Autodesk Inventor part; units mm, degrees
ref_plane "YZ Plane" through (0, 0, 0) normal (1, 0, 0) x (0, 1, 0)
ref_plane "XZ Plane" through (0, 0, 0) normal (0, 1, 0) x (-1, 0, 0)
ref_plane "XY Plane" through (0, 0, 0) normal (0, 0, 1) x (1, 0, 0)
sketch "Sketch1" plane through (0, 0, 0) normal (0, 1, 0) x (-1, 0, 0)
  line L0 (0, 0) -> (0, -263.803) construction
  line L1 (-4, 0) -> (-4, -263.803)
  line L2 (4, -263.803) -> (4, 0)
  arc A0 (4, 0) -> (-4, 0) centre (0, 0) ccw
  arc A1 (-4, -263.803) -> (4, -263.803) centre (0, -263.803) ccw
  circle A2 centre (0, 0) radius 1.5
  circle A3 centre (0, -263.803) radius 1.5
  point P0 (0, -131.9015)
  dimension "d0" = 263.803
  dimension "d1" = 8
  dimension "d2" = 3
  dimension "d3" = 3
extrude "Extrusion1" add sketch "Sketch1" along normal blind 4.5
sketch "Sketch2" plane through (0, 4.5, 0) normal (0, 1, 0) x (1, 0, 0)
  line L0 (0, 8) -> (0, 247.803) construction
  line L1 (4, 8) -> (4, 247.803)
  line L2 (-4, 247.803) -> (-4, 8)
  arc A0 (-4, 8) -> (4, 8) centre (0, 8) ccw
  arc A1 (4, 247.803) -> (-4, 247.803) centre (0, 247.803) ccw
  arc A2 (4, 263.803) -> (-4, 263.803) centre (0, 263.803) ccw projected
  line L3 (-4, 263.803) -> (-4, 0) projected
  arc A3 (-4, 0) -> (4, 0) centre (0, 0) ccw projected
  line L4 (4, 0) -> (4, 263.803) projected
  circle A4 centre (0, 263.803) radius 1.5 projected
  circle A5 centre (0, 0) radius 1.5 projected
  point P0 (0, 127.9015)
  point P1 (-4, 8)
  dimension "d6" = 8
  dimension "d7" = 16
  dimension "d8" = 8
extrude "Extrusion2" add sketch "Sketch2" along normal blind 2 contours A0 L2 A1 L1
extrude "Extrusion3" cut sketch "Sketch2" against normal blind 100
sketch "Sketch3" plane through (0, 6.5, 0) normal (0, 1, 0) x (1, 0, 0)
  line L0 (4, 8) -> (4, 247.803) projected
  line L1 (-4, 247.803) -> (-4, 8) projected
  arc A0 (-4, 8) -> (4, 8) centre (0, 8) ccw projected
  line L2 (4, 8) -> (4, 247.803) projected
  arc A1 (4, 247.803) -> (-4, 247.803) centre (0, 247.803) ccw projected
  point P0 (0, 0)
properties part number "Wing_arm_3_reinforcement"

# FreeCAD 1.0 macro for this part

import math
import FreeCAD as App
import Part
import Sketcher
from FreeCAD import Vector
Q = App.Units.Quantity

doc = App.newDocument("Part")
body = doc.addObject("PartDesign::Body", "Body")

sketch1 = body.newObject("Sketcher::SketchObject", "Sketch")
sketch1.AttachmentSupport = (doc.getObject("XZ_Plane"), [""])
sketch1.MapMode = "FlatFace"
sketch1.addGeometry([
    Part.ArcOfCircle(Part.Circle(Vector(0, 0, 0), Vector(0, 0, 1), 4), math.radians(0), math.radians(180)),
    Part.LineSegment(Vector(4, 0, 0), Vector(4, -263.8, 0)),
    Part.ArcOfCircle(Part.Circle(Vector(0, -263.8, 0), Vector(0, 0, 1), 4), math.radians(180), math.radians(360)),
    Part.LineSegment(Vector(-4, -263.8, 0), Vector(-4, 0, 0)),
    Part.Circle(Vector(0, -263.8, 0), Vector(0, 0, 1), 1.5),
    Part.Circle(Vector(0, 0, 0), Vector(0, 0, 1), 1.5),
], False)
sketch1.addConstraint([
    Sketcher.Constraint("Tangent", 0, 1, 1, 1),
    Sketcher.Constraint("Tangent", 1, 2, 2, 2),
    Sketcher.Constraint("Tangent", 2, 1, 3, 1),
    Sketcher.Constraint("Tangent", 3, 2, 0, 2),
    Sketcher.Constraint("Vertical", 1),
    Sketcher.Constraint("Vertical", 3),
    Sketcher.Constraint("Coincident", 0, 3, -1, 1),
    Sketcher.Constraint("Coincident", 5, 3, -1, 1),
    Sketcher.Constraint("Coincident", 4, 3, 2, 3),
    Sketcher.Constraint("Equal", 4, 5),
    Sketcher.Constraint("Diameter", 4, Q("3 mm")),
    Sketcher.Constraint("Radius", 0, Q("4 mm")),
    Sketcher.Constraint("DistanceY", 1, 2, 1, 1, Q("263.803 mm")),
])
pad1 = body.newObject("PartDesign::Pad", "Pad")
pad1.Profile = sketch1
pad1.Length = 4.5
pad1.Reversed = True

sketch2 = body.newObject("Sketcher::SketchObject", "Sketch001")
sketch2.AttachmentSupport = (doc.getObject("XZ_Plane"), [""])
sketch2.MapMode = "FlatFace"
sketch2.AttachmentOffset = App.Placement(Vector(0, 0, -4.5), App.Rotation())
sketch2.addGeometry([
    Part.ArcOfCircle(Part.Circle(Vector(0, -8, 0), Vector(0, 0, 1), 4), math.radians(0), math.radians(180)),
    Part.LineSegment(Vector(4, -8, 0), Vector(4, -247.8, 0)),
    Part.ArcOfCircle(Part.Circle(Vector(0, -247.8, 0), Vector(0, 0, 1), 4), math.radians(180), math.radians(360)),
    Part.LineSegment(Vector(-4, -247.8, 0), Vector(-4, -8, 0)),
], False)
sketch2.addConstraint([
    Sketcher.Constraint("Tangent", 0, 1, 1, 1),
    Sketcher.Constraint("Tangent", 1, 2, 2, 2),
    Sketcher.Constraint("Tangent", 2, 1, 3, 1),
    Sketcher.Constraint("Tangent", 3, 2, 0, 2),
    Sketcher.Constraint("Vertical", 1),
    Sketcher.Constraint("Vertical", 3),
    Sketcher.Constraint("PointOnObject", 0, 3, -2),
    Sketcher.Constraint("Radius", 0, Q("4 mm")),
    Sketcher.Constraint("DistanceY", 0, 3, -1, 1, Q("8 mm")),
    Sketcher.Constraint("DistanceY", 1, 2, 1, 1, Q("239.803 mm")),
])
pad2 = body.newObject("PartDesign::Pad", "Pad001")
pad2.Profile = sketch2
pad2.Length = 2
pad2.Reversed = True

sketch3 = body.newObject("Sketcher::SketchObject", "Sketch002")
sketch3.AttachmentSupport = (doc.getObject("XZ_Plane"), [""])
sketch3.MapMode = "FlatFace"
sketch3.AttachmentOffset = App.Placement(Vector(0, 0, -4.5), App.Rotation())
sketch3.addGeometry([
    Part.ArcOfCircle(Part.Circle(Vector(0, 0, 0), Vector(0, 0, 1), 4), math.radians(0), math.radians(180)),
    Part.LineSegment(Vector(4, 0, 0), Vector(4, -263.8, 0)),
    Part.ArcOfCircle(Part.Circle(Vector(0, -263.8, 0), Vector(0, 0, 1), 4), math.radians(180), math.radians(360)),
    Part.LineSegment(Vector(-4, -263.8, 0), Vector(-4, 0, 0)),
    Part.Circle(Vector(0, 0, 0), Vector(0, 0, 1), 1.5),
    Part.Circle(Vector(0, -263.8, 0), Vector(0, 0, 1), 1.5),
], False)
sketch3.addConstraint([
    Sketcher.Constraint("Tangent", 0, 1, 1, 1),
    Sketcher.Constraint("Tangent", 1, 2, 2, 2),
    Sketcher.Constraint("Tangent", 2, 1, 3, 1),
    Sketcher.Constraint("Tangent", 3, 2, 0, 2),
    Sketcher.Constraint("Vertical", 1),
    Sketcher.Constraint("Vertical", 3),
    Sketcher.Constraint("Coincident", 0, 3, -1, 1),
    Sketcher.Constraint("Coincident", 4, 3, -1, 1),
    Sketcher.Constraint("Coincident", 5, 3, 2, 3),
    Sketcher.Constraint("Equal", 4, 5),
    Sketcher.Constraint("Radius", 0, Q("4 mm")),
    Sketcher.Constraint("Diameter", 4, Q("3 mm")),
    Sketcher.Constraint("DistanceY", 1, 2, 1, 1, Q("263.803 mm")),
])
pocket1 = body.newObject("PartDesign::Pocket", "Pocket")
pocket1.Profile = sketch3
pocket1.Length = 100
pocket1.Reversed = True

doc.recompute()
